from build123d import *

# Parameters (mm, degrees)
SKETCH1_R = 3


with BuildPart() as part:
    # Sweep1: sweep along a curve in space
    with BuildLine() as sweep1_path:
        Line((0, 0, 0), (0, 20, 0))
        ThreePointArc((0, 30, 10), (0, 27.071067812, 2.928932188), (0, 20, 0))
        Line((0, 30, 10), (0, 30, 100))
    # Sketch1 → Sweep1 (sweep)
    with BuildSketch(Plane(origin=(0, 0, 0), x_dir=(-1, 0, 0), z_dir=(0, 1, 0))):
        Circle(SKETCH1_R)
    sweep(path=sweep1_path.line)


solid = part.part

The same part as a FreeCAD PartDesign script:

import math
import FreeCAD as App
import Part
import Sketcher
from FreeCAD import Vector

doc = App.newDocument("Part")
body = doc.addObject("PartDesign::Body", "Body")

# Sketch on XZ plane
sketch1 = body.newObject("Sketcher::SketchObject", "Sketch")
sketch1.AttachmentSupport = (doc.getObject("XZ_Plane"), [""])
sketch1.MapMode = "FlatFace"
sketch1.addGeometry(Part.Circle(Vector(0, 0, 0), Vector(0, 0, 1), 3), False)
sketch1.addConstraint([
    Sketcher.Constraint("Coincident", 0, 3, -1, 1),
    Sketcher.Constraint("Diameter", 0, 6.0),
])

# Sketch on YZ plane
sketch2 = body.newObject("Sketcher::SketchObject", "Sketch001")
sketch2.AttachmentSupport = (doc.getObject("YZ_Plane"), [""])
sketch2.MapMode = "FlatFace"
sketch2.addGeometry([
    Part.LineSegment(Vector(0, 0, 0), Vector(20, 0, 0)),
    Part.ArcOfCircle(Part.Circle(Vector(20, 10, 0), Vector(0, 0, 1), 10), math.radians(-90), math.radians(0)),
    Part.LineSegment(Vector(30, 10, 0), Vector(30, 100, 0)),
], False)
sketch2.addConstraint([
    Sketcher.Constraint("Tangent", 0, 2, 1, 1),
    Sketcher.Constraint("Tangent", 1, 2, 2, 1),
    Sketcher.Constraint("Horizontal", 0),
    Sketcher.Constraint("Vertical", 2),
    Sketcher.Constraint("Coincident", 0, 1, -1, 1),
    Sketcher.Constraint("Radius", 1, 10.0),
    Sketcher.Constraint("DistanceX", 0, 1, 0, 2, 20.0),
    Sketcher.Constraint("DistanceY", 2, 1, 2, 2, 90.0),
])
doc.recompute()

additivepipe = body.newObject("PartDesign::AdditivePipe", "AdditivePipe")
additivepipe.Profile = sketch1
additivepipe.Spine = (sketch2, ["Edge1", "Edge2", "Edge3"])

doc.recompute()
